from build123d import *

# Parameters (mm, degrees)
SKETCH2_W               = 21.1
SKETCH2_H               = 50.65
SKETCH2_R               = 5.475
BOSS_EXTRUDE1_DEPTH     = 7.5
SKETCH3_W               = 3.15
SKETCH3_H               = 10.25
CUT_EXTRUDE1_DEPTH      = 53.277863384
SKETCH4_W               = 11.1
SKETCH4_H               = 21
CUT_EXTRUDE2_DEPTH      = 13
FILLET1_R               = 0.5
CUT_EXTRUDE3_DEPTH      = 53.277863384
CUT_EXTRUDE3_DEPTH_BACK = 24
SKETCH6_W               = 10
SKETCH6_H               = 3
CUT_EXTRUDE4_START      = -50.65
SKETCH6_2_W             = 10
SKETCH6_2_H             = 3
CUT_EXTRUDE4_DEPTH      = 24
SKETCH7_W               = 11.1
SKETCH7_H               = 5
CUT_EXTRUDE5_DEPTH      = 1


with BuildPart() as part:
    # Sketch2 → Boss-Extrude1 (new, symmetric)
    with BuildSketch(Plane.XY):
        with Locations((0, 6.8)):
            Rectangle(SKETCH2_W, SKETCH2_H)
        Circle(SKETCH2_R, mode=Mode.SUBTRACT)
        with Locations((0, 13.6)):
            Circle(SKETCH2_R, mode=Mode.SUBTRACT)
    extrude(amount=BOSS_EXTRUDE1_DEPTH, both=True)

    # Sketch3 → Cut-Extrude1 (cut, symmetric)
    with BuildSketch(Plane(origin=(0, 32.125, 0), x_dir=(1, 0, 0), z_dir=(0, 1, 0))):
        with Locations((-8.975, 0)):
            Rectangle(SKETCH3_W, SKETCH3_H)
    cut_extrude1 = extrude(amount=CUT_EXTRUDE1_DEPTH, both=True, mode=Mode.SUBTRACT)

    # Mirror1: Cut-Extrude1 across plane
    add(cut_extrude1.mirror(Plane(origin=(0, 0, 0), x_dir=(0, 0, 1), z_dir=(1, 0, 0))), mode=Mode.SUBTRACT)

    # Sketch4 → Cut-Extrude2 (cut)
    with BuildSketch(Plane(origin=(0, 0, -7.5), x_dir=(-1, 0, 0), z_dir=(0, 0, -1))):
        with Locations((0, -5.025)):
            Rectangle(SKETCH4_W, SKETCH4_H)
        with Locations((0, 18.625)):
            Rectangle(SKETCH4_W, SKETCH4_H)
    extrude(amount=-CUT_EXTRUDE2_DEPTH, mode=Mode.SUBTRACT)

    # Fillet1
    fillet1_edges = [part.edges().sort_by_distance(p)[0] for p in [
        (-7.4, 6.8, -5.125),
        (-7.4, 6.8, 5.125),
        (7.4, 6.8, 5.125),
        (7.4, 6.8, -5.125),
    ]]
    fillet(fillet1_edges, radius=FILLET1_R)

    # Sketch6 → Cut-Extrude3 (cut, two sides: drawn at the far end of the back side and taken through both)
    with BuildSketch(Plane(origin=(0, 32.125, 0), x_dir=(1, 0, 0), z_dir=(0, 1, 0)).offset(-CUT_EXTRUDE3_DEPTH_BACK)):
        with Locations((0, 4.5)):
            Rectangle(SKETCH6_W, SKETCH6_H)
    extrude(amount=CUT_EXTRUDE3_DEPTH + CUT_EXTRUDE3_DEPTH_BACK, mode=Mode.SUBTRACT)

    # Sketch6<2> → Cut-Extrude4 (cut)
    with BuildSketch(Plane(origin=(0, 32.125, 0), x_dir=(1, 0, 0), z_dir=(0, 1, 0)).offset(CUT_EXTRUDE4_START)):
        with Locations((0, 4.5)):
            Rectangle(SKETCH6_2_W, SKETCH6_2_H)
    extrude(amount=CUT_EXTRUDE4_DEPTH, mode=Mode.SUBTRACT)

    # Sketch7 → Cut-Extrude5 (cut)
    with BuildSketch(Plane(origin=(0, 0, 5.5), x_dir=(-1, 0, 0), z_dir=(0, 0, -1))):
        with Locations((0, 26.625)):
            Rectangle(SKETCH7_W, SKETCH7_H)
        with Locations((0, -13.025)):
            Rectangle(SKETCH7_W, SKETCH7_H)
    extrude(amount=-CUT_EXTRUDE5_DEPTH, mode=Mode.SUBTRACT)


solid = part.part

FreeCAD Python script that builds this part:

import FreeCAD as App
import Part
import Sketcher

V = App.Vector


def edges_at(feature, points):
    """Names of the edges that pass closest to the given points."""
    edges = feature.Shape.Edges
    near = lambda p: min(range(len(edges)), key=lambda i: edges[i].distToShape(Part.Vertex(*p))[0])
    return sorted({f"Edge{near(p) + 1}" for p in points})

doc = App.newDocument("Part")
body = doc.addObject("PartDesign::Body", "Body")

# Sketch on XY plane
sketch1 = body.newObject("Sketcher::SketchObject", "Sketch")
sketch1.AttachmentSupport = (doc.getObject("XY_Plane"), [""])
sketch1.MapMode = "FlatFace"
sketch1.addGeometry(Part.LineSegment(V(-11, 32, 0), V(-11, -19, 0)), False)
sketch1.addGeometry(Part.LineSegment(V(-11, -19, 0), V(11, -19, 0)), False)
sketch1.addGeometry(Part.LineSegment(V(11, -19, 0), V(11, 32, 0)), False)
sketch1.addGeometry(Part.LineSegment(V(11, 32, 0), V(-11, 32, 0)), False)
sketch1.addGeometry(Part.Circle(V(0, 0, 0), V(0, 0, 1), 5), False)
sketch1.addGeometry(Part.Circle(V(0, 14, 0), V(0, 0, 1), 5), False)
sketch1.addConstraint(Sketcher.Constraint("Coincident", 0, 2, 1, 1))
sketch1.addConstraint(Sketcher.Constraint("Coincident", 1, 2, 2, 1))
sketch1.addConstraint(Sketcher.Constraint("Coincident", 2, 2, 3, 1))
sketch1.addConstraint(Sketcher.Constraint("Coincident", 3, 2, 0, 1))
sketch1.addConstraint(Sketcher.Constraint("Vertical", 0))
sketch1.addConstraint(Sketcher.Constraint("Horizontal", 1))
sketch1.addConstraint(Sketcher.Constraint("Vertical", 2))
sketch1.addConstraint(Sketcher.Constraint("Horizontal", 3))
sketch1.addConstraint(Sketcher.Constraint("Coincident", 4, 3, -1, 1))
sketch1.addConstraint(Sketcher.Constraint("Equal", 4, 5))
sketch1.addConstraint(Sketcher.Constraint("PointOnObject", 5, 3, -2))
sketch1.addConstraint(Sketcher.Constraint("Diameter", 4, 10.95))
sketch1.addConstraint(Sketcher.Constraint("DistanceX", 1, 1, 1, 2, 21.1))
sketch1.addConstraint(Sketcher.Constraint("DistanceY", 0, 2, 0, 1, 50.65))
sketch1.addConstraint(Sketcher.Constraint("DistanceY", -1, 1, 5, 3, 13.6))
sketch1.addConstraint(Sketcher.Constraint("DistanceX", 0, 2, -1, 1, 10.55))
sketch1.addConstraint(Sketcher.Constraint("DistanceY", 0, 2, -1, 1, 18.525))
pad1 = body.newObject("PartDesign::Pad", "Pad")
pad1.Profile = sketch1
pad1.Length = 15
pad1.Midplane = True

# Sketch on XZ plane
sketch2 = body.newObject("Sketcher::SketchObject", "Sketch001")
sketch2.AttachmentSupport = (doc.getObject("XZ_Plane"), [""])
sketch2.MapMode = "FlatFace"
sketch2.AttachmentOffset = App.Placement(V(0, 0, -32.125), App.Rotation())
sketch2.addGeometry(Part.LineSegment(V(-10.6, -5.1, 0), V(-10.6, 5.1, 0)), False)
sketch2.addGeometry(Part.LineSegment(V(-10.6, 5.1, 0), V(-7.4, 5.1, 0)), False)
sketch2.addGeometry(Part.LineSegment(V(-7.4, 5.1, 0), V(-7.4, -5.1, 0)), False)
sketch2.addGeometry(Part.LineSegment(V(-7.4, -5.1, 0), V(-10.6, -5.1, 0)), False)
sketch2.addConstraint(Sketcher.Constraint("Coincident", 0, 2, 1, 1))
sketch2.addConstraint(Sketcher.Constraint("Coincident", 1, 2, 2, 1))
sketch2.addConstraint(Sketcher.Constraint("Coincident", 2, 2, 3, 1))
sketch2.addConstraint(Sketcher.Constraint("Coincident", 3, 2, 0, 1))
sketch2.addConstraint(Sketcher.Constraint("Vertical", 0))
sketch2.addConstraint(Sketcher.Constraint("Horizontal", 1))
sketch2.addConstraint(Sketcher.Constraint("Vertical", 2))
sketch2.addConstraint(Sketcher.Constraint("Horizontal", 3))
sketch2.addConstraint(Sketcher.Constraint("DistanceX", 1, 1, 1, 2, 3.15))
sketch2.addConstraint(Sketcher.Constraint("DistanceY", 0, 1, 0, 2, 10.25))
sketch2.addConstraint(Sketcher.Constraint("DistanceX", 1, 2, -1, 1, 7.4))
sketch2.addConstraint(Sketcher.Constraint("DistanceY", -1, 1, 0, 2, 5.125))
pocket1 = body.newObject("PartDesign::Pocket", "Pocket")
pocket1.Profile = sketch2
pocket1.Length = 106.555727
pocket1.Midplane = True
doc.recompute()

mirrored = body.newObject("PartDesign::Mirrored", "Mirrored")
mirrored.Originals = [pocket1]
mirrored.MirrorPlane = (doc.getObject("YZ_Plane"), [""])
body.Tip = mirrored

# Sketch on XY plane
sketch3 = body.newObject("Sketcher::SketchObject", "Sketch002")
sketch3.AttachmentSupport = (doc.getObject("XY_Plane"), [""])
sketch3.MapMode = "FlatFace"
sketch3.AttachmentOffset = App.Placement(V(0, 0, -7.5), App.Rotation())
sketch3.addGeometry(Part.LineSegment(V(6, 5, 0), V(6, -16, 0)), False)
sketch3.addGeometry(Part.LineSegment(V(6, -16, 0), V(-6, -16, 0)), False)
sketch3.addGeometry(Part.LineSegment(V(-6, -16, 0), V(-6, 5, 0)), False)
sketch3.addGeometry(Part.LineSegment(V(-6, 5, 0), V(6, 5, 0)), False)
sketch3.addGeometry(Part.LineSegment(V(6, 29, 0), V(6, 8, 0)), False)
sketch3.addGeometry(Part.LineSegment(V(6, 8, 0), V(-6, 8, 0)), False)
sketch3.addGeometry(Part.LineSegment(V(-6, 8, 0), V(-6, 29, 0)), False)
sketch3.addGeometry(Part.LineSegment(V(-6, 29, 0), V(6, 29, 0)), False)
sketch3.addConstraint(Sketcher.Constraint("Coincident", 0, 2, 1, 1))
sketch3.addConstraint(Sketcher.Constraint("Coincident", 1, 2, 2, 1))
sketch3.addConstraint(Sketcher.Constraint("Coincident", 2, 2, 3, 1))
sketch3.addConstraint(Sketcher.Constraint("Coincident", 3, 2, 0, 1))
sketch3.addConstraint(Sketcher.Constraint("Coincident", 4, 2, 5, 1))
sketch3.addConstraint(Sketcher.Constraint("Coincident", 5, 2, 6, 1))
sketch3.addConstraint(Sketcher.Constraint("Coincident", 6, 2, 7, 1))
sketch3.addConstraint(Sketcher.Constraint("Coincident", 7, 2, 4, 1))
sketch3.addConstraint(Sketcher.Constraint("Vertical", 0))
sketch3.addConstraint(Sketcher.Constraint("Horizontal", 1))
sketch3.addConstraint(Sketcher.Constraint("Vertical", 2))
sketch3.addConstraint(Sketcher.Constraint("Horizontal", 3))
sketch3.addConstraint(Sketcher.Constraint("Vertical", 4))
sketch3.addConstraint(Sketcher.Constraint("Horizontal", 5))
sketch3.addConstraint(Sketcher.Constraint("Vertical", 6))
sketch3.addConstraint(Sketcher.Constraint("Horizontal", 7))
sketch3.addConstraint(Sketcher.Constraint("Vertical", 3, 2, 4, 2))
sketch3.addConstraint(Sketcher.Constraint("Vertical", 2, 2, 5, 2))
sketch3.addConstraint(Sketcher.Constraint("Equal", 2, 4))
sketch3.addConstraint(Sketcher.Constraint("DistanceY", 0, 2, 0, 1, 21.0))
sketch3.addConstraint(Sketcher.Constraint("DistanceX", 1, 2, 1, 1, 11.1))
sketch3.addConstraint(Sketcher.Constraint("DistanceX", -1, 1, 0, 2, 5.55))
sketch3.addConstraint(Sketcher.Constraint("DistanceY", 3, 2, 4, 2, 2.65))
sketch3.addConstraint(Sketcher.Constraint("DistanceY", 0, 2, -1, 1, 15.525))
pocket2 = body.newObject("PartDesign::Pocket", "Pocket001")
pocket2.Profile = sketch3
pocket2.Length = 13
pocket2.Reversed = True
doc.recompute()

fillet = body.newObject("PartDesign::Fillet", "Fillet")
fillet.Base = (pocket2, edges_at(pocket2, [
    (-7.4, 6.8, -5.125),
    (-7.4, 6.8, 5.125),
    (7.4, 6.8, 5.125),
    (7.4, 6.8, -5.125),
]))
fillet.Radius = 0.5

# Sketch on XZ plane
sketch4 = body.newObject("Sketcher::SketchObject", "Sketch003")
sketch4.AttachmentSupport = (doc.getObject("XZ_Plane"), [""])
sketch4.MapMode = "FlatFace"
sketch4.AttachmentOffset = App.Placement(V(0, 0, -32.125), App.Rotation())
sketch4.addGeometry(Part.LineSegment(V(-5, -6, 0), V(-5, -3, 0)), False)
sketch4.addGeometry(Part.LineSegment(V(-5, -3, 0), V(5, -3, 0)), False)
sketch4.addGeometry(Part.LineSegment(V(5, -3, 0), V(5, -6, 0)), False)
sketch4.addGeometry(Part.LineSegment(V(5, -6, 0), V(-5, -6, 0)), False)
sketch4.addConstraint(Sketcher.Constraint("Coincident", 0, 2, 1, 1))
sketch4.addConstraint(Sketcher.Constraint("Coincident", 1, 2, 2, 1))
sketch4.addConstraint(Sketcher.Constraint("Coincident", 2, 2, 3, 1))
sketch4.addConstraint(Sketcher.Constraint("Coincident", 3, 2, 0, 1))
sketch4.addConstraint(Sketcher.Constraint("Vertical", 0))
sketch4.addConstraint(Sketcher.Constraint("Horizontal", 1))
sketch4.addConstraint(Sketcher.Constraint("Vertical", 2))
sketch4.addConstraint(Sketcher.Constraint("Horizontal", 3))
sketch4.addConstraint(Sketcher.Constraint("DistanceX", 1, 1, 1, 2, 10.0))
sketch4.addConstraint(Sketcher.Constraint("DistanceY", 0, 1, 0, 2, 3.0))
sketch4.addConstraint(Sketcher.Constraint("DistanceX", 0, 2, -1, 1, 5.0))
sketch4.addConstraint(Sketcher.Constraint("DistanceY", 0, 2, -1, 1, 3.0))
pocket3 = body.newObject("PartDesign::Pocket", "Pocket002")
pocket3.Profile = sketch4
pocket3.Type = "TwoLengths"
pocket3.Length = 53.277863
pocket3.Length2 = 24

# Sketch on XZ plane
sketch5 = body.newObject("Sketcher::SketchObject", "Sketch004")
sketch5.AttachmentSupport = (doc.getObject("XZ_Plane"), [""])
sketch5.MapMode = "FlatFace"
sketch5.AttachmentOffset = App.Placement(V(0, 0, 18.525), App.Rotation())
sketch5.addGeometry(Part.LineSegment(V(-5, -6, 0), V(-5, -3, 0)), False)
sketch5.addGeometry(Part.LineSegment(V(-5, -3, 0), V(5, -3, 0)), False)
sketch5.addGeometry(Part.LineSegment(V(5, -3, 0), V(5, -6, 0)), False)
sketch5.addGeometry(Part.LineSegment(V(5, -6, 0), V(-5, -6, 0)), False)
sketch5.addConstraint(Sketcher.Constraint("Coincident", 0, 2, 1, 1))
sketch5.addConstraint(Sketcher.Constraint("Coincident", 1, 2, 2, 1))
sketch5.addConstraint(Sketcher.Constraint("Coincident", 2, 2, 3, 1))
sketch5.addConstraint(Sketcher.Constraint("Coincident", 3, 2, 0, 1))
sketch5.addConstraint(Sketcher.Constraint("Vertical", 0))
sketch5.addConstraint(Sketcher.Constraint("Horizontal", 1))
sketch5.addConstraint(Sketcher.Constraint("Vertical", 2))
sketch5.addConstraint(Sketcher.Constraint("Horizontal", 3))
sketch5.addConstraint(Sketcher.Constraint("DistanceX", 1, 1, 1, 2, 10.0))
sketch5.addConstraint(Sketcher.Constraint("DistanceY", 0, 1, 0, 2, 3.0))
sketch5.addConstraint(Sketcher.Constraint("DistanceX", 0, 2, -1, 1, 5.0))
sketch5.addConstraint(Sketcher.Constraint("DistanceY", 0, 2, -1, 1, 3.0))
pocket4 = body.newObject("PartDesign::Pocket", "Pocket003")
pocket4.Profile = sketch5
pocket4.Length = 24

# Sketch on XY plane
sketch6 = body.newObject("Sketcher::SketchObject", "Sketch005")
sketch6.AttachmentSupport = (doc.getObject("XY_Plane"), [""])
sketch6.MapMode = "FlatFace"
sketch6.AttachmentOffset = App.Placement(V(0, 0, 5.5), App.Rotation())
sketch6.addGeometry(Part.LineSegment(V(6, 29, 0), V(6, 24, 0)), False)
sketch6.addGeometry(Part.LineSegment(V(6, 24, 0), V(-6, 24, 0)), False)
sketch6.addGeometry(Part.LineSegment(V(-6, 24, 0), V(-6, 29, 0)), False)
sketch6.addGeometry(Part.LineSegment(V(-6, 29, 0), V(6, 29, 0)), False)
sketch6.addGeometry(Part.LineSegment(V(6, -11, 0), V(6, -16, 0)), False)
sketch6.addGeometry(Part.LineSegment(V(6, -16, 0), V(-6, -16, 0)), False)
sketch6.addGeometry(Part.LineSegment(V(-6, -16, 0), V(-6, -11, 0)), False)
sketch6.addGeometry(Part.LineSegment(V(-6, -11, 0), V(6, -11, 0)), False)
sketch6.addConstraint(Sketcher.Constraint("Coincident", 0, 2, 1, 1))
sketch6.addConstraint(Sketcher.Constraint("Coincident", 1, 2, 2, 1))
sketch6.addConstraint(Sketcher.Constraint("Coincident", 2, 2, 3, 1))
sketch6.addConstraint(Sketcher.Constraint("Coincident", 3, 2, 0, 1))
sketch6.addConstraint(Sketcher.Constraint("Coincident", 4, 2, 5, 1))
sketch6.addConstraint(Sketcher.Constraint("Coincident", 5, 2, 6, 1))
sketch6.addConstraint(Sketcher.Constraint("Coincident", 6, 2, 7, 1))
sketch6.addConstraint(Sketcher.Constraint("Coincident", 7, 2, 4, 1))
sketch6.addConstraint(Sketcher.Constraint("Vertical", 0))
sketch6.addConstraint(Sketcher.Constraint("Horizontal", 1))
sketch6.addConstraint(Sketcher.Constraint("Vertical", 2))
sketch6.addConstraint(Sketcher.Constraint("Horizontal", 3))
sketch6.addConstraint(Sketcher.Constraint("Vertical", 4))
sketch6.addConstraint(Sketcher.Constraint("Horizontal", 5))
sketch6.addConstraint(Sketcher.Constraint("Vertical", 6))
sketch6.addConstraint(Sketcher.Constraint("Horizontal", 7))
sketch6.addConstraint(Sketcher.Constraint("Vertical", 3, 2, 4, 2))
sketch6.addConstraint(Sketcher.Constraint("Vertical", 2, 2, 5, 2))
sketch6.addConstraint(Sketcher.Constraint("Equal", 2, 4))
sketch6.addConstraint(Sketcher.Constraint("DistanceY", 0, 2, 0, 1, 5.0))
sketch6.addConstraint(Sketcher.Constraint("DistanceX", 1, 2, 1, 1, 11.1))
sketch6.addConstraint(Sketcher.Constraint("DistanceX", -1, 1, 0, 2, 5.55))
sketch6.addConstraint(Sketcher.Constraint("DistanceY", 4, 2, 0, 2, 39.65))
sketch6.addConstraint(Sketcher.Constraint("DistanceY", -1, 1, 0, 2, 24.125))
pocket5 = body.newObject("PartDesign::Pocket", "Pocket004")
pocket5.Profile = sketch6
pocket5.Length = 1
pocket5.Reversed = True

doc.recompute()
